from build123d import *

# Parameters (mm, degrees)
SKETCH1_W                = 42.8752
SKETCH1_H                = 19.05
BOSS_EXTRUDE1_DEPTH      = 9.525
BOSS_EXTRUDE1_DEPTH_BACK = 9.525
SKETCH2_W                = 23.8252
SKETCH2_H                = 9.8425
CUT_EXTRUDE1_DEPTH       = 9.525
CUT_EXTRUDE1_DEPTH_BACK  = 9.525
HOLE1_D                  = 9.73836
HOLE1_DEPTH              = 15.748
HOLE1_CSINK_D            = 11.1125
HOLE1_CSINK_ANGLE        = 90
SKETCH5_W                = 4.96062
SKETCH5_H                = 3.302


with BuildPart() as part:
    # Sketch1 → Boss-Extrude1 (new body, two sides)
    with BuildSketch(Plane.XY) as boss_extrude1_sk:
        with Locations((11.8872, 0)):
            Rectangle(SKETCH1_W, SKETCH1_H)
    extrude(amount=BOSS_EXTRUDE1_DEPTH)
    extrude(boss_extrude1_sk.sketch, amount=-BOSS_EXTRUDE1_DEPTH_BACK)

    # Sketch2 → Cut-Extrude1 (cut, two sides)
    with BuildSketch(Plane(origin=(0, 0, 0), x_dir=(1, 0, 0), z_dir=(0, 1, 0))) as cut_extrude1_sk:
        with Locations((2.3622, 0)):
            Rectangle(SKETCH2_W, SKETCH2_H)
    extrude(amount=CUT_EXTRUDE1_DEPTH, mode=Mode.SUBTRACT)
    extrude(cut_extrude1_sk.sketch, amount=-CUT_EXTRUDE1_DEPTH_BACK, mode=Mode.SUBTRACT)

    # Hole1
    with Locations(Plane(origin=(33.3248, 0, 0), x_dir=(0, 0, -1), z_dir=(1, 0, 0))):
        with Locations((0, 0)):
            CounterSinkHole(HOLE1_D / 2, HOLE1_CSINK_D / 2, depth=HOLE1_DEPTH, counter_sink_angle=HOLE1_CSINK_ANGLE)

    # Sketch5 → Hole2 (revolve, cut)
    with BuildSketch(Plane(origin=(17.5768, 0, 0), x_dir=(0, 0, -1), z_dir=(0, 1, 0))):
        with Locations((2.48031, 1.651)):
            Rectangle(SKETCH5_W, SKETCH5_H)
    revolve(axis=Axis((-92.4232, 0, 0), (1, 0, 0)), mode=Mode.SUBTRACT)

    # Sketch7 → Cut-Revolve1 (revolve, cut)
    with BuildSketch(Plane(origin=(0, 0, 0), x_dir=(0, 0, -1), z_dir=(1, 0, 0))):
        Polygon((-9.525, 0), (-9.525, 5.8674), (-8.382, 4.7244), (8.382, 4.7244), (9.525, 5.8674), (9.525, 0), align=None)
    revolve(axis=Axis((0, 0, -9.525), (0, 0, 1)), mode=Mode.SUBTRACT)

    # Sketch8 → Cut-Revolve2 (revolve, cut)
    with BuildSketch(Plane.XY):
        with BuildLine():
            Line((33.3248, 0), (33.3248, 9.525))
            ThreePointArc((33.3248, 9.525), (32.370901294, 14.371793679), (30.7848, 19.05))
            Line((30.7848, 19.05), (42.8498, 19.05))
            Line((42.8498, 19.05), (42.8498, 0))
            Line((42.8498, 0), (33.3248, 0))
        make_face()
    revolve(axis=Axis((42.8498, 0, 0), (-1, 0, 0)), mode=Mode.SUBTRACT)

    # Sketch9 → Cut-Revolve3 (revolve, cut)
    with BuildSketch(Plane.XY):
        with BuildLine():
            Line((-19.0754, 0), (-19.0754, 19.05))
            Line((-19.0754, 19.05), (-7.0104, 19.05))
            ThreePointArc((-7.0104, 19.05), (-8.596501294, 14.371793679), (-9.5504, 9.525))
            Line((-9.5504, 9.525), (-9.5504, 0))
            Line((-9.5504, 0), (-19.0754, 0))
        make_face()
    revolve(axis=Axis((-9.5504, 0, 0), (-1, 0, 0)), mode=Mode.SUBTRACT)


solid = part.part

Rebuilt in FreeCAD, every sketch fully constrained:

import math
import FreeCAD as App
import Part
import Sketcher
from FreeCAD import Vector
Q = App.Units.Quantity


def add_polygon(sketch, points):
    """Adds a closed chain of lines whose ends are joined by coincident constraints."""
    first, n = sketch.GeometryCount, len(points)
    for a, b in zip(points, points[1:] + points[:1]):
        sketch.addGeometry(Part.LineSegment(App.Vector(*a, 0), App.Vector(*b, 0)), False)
    for i in range(n):
        sketch.addConstraint(Sketcher.Constraint("Coincident", first + i, 2, first + (i + 1) % n, 1))

doc = App.newDocument("Part")
params = doc.addObject("Spreadsheet::Sheet", "Params")
for row, (alias, value) in enumerate([
    ("sketch1_height", "0.75 in"),
    ("sketch1_width", "1.688 in"),
    ("pad1_length", "0.375 in"),
    ("pad1_length2", "0.375 in"),
    ("sketch2_width", "0.938 in"),
    ("hole_diameter", "0.3834 in"),
    ("hole_depth", "0.62 in"),
    ("hole_csink_diameter", "0.4375 in"),
    ("sketch4_width", "0.13 in"),
    ("groove_angle", "360 deg"),
    ("sketch5_height", "0.75 in"),
    ("sketch5_height2", "0.66 in"),
    ("sketch5_width", "0.231 in"),
    ("groove2_angle", "360 deg"),
    ("sketch6_height", "0.75 in"),
    ("sketch6_width", "0.375 in"),
    ("groove3_angle", "360 deg"),
    ("sketch7_height", "0.75 in"),
    ("sketch7_width", "0.375 in"),
    ("groove4_angle", "360 deg"),
], start=1):
    params.set(f"A{row}", alias)
    params.set(f"B{row}", "=" + value)
    params.setAlias(f"B{row}", alias)

body = doc.addObject("PartDesign::Body", "Body")

# Sketch on XY plane
sketch1 = body.newObject("Sketcher::SketchObject", "Sketch")
sketch1.AttachmentSupport = (doc.getObject("XY_Plane"), [""])
sketch1.MapMode = "FlatFace"
add_polygon(sketch1, [(-9.5504, 9.525), (-9.5504, -9.525), (33.3248, -9.525), (33.3248, 9.525)])  # lines 0-3
sketch1.addConstraint([
    Sketcher.Constraint("Vertical", 0),
    Sketcher.Constraint("Horizontal", 1),
    Sketcher.Constraint("Vertical", 2),
    Sketcher.Constraint("Horizontal", 3),
    Sketcher.Constraint("DistanceY", 0, 2, 0, 1, Q("0.75 in")),
    Sketcher.Constraint("DistanceX", 1, 1, 1, 2, Q("1.688 in")),
    Sketcher.Constraint("DistanceX", 0, 2, -1, 1, Q("0.376 in")),
    Sketcher.Constraint("DistanceY", 0, 2, -1, 1, Q("0.375 in")),
])
sketch1.setExpression("Constraints[8]", "Params.sketch1_height")
sketch1.setExpression("Constraints[9]", "Params.sketch1_width")
pad1 = body.newObject("PartDesign::Pad", "Pad")
pad1.Profile = sketch1
pad1.Type = "TwoLengths"
pad1.setExpression("Length", "Params.pad1_length")
pad1.setExpression("Length2", "Params.pad1_length2")

# Sketch on XZ plane
sketch2 = body.newObject("Sketcher::SketchObject", "Sketch001")
sketch2.AttachmentSupport = (doc.getObject("XZ_Plane"), [""])
sketch2.MapMode = "FlatFace"
add_polygon(sketch2, [(-9.5504, -4.92125), (-9.5504, 4.92125), (14.2748, 4.92125), (14.2748, -4.92125)])  # lines 0-3
sketch2.addConstraint([
    Sketcher.Constraint("Vertical", 0),
    Sketcher.Constraint("Horizontal", 1),
    Sketcher.Constraint("Vertical", 2),
    Sketcher.Constraint("Horizontal", 3),
    Sketcher.Constraint("DistanceX", 1, 1, 1, 2, Q("0.938 in")),
    Sketcher.Constraint("DistanceY", 0, 1, 0, 2, Q("0.3875 in")),
    Sketcher.Constraint("DistanceX", 0, 2, -1, 1, Q("0.376 in")),
    Sketcher.Constraint("DistanceY", -1, 1, 0, 2, Q("4.92125 mm")),
])
sketch2.setExpression("Constraints[8]", "Params.sketch2_width")
pocket1 = body.newObject("PartDesign::Pocket", "Pocket")
pocket1.Profile = sketch2
pocket1.Type = "ThroughAll"
pocket1.Midplane = True

# Sketch on YZ plane
sketch3 = body.newObject("Sketcher::SketchObject", "Sketch002")
sketch3.AttachmentSupport = (doc.getObject("YZ_Plane"), [""])
sketch3.MapMode = "FlatFace"
sketch3.AttachmentOffset = App.Placement(Vector(0, 0, 1.312 * 25.4), App.Rotation())
sketch3.addGeometry(Part.Circle(Vector(0, 0, 0), Vector(0, 0, 1), 4.86918), False)
sketch3.addConstraint([
    Sketcher.Constraint("Coincident", 0, 3, -1, 1),
    Sketcher.Constraint("Diameter", 0, Q("0.3834 in")),
])
doc.recompute()
hole = body.newObject("PartDesign::Hole", "Hole")
hole.Profile = sketch3
hole.ThreadType = "None"
hole.setExpression("Diameter", "Params.hole_diameter")
hole.DepthType = "Dimension"
hole.setExpression("Depth", "Params.hole_depth")
hole.DrillPoint = "Flat"
hole.HoleCutType = "Countersink"
hole.setExpression("HoleCutDiameter", "Params.hole_csink_diameter")
hole.HoleCutCountersinkAngle = 90

# Sketch on XZ plane
sketch4 = body.newObject("Sketcher::SketchObject", "Sketch003")
sketch4.AttachmentSupport = (doc.getObject("XZ_Plane"), [""])
sketch4.MapMode = "FlatFace"
add_polygon(sketch4, [(14.2748, 0), (17.5768, 0), (17.5768, -4.96062), (14.2748, -4.96062)])  # lines 0-3
sketch4.addConstraint([
    Sketcher.Constraint("Horizontal", 0),
    Sketcher.Constraint("Vertical", 1),
    Sketcher.Constraint("Horizontal", 2),
    Sketcher.Constraint("Vertical", 3),
    Sketcher.Constraint("PointOnObject", 0, 2, -1),
    Sketcher.Constraint("DistanceX", 0, 1, 0, 2, Q("0.13 in")),
    Sketcher.Constraint("DistanceY", 1, 2, 1, 1, Q("0.1953 in")),
    Sketcher.Constraint("DistanceX", -1, 1, 0, 2, Q("0.692 in")),
])
sketch4.setExpression("Constraints[9]", "Params.sketch4_width")
groove = body.newObject("PartDesign::Groove", "Groove")
groove.Profile = sketch4
groove.ReferenceAxis = (sketch4, ["H_Axis"])
groove.setExpression("Angle", "Params.groove_angle")

# Sketch on YZ plane
sketch5 = body.newObject("Sketcher::SketchObject", "Sketch004")
sketch5.AttachmentSupport = (doc.getObject("YZ_Plane"), [""])
sketch5.MapMode = "FlatFace"
add_polygon(sketch5, [(5.8674, 9.525), (0, 9.525), (0, -9.525), (5.8674, -9.525), (4.7244, -8.382), (4.7244, 8.382)])  # lines 0-5
sketch5.addConstraint([
    Sketcher.Constraint("Horizontal", 0),
    Sketcher.Constraint("Vertical", 1),
    Sketcher.Constraint("Horizontal", 2),
    Sketcher.Constraint("Vertical", 4),
    Sketcher.Constraint("Symmetric", 0, 2, 1, 2, -1, 1),
    Sketcher.Constraint("Perpendicular", 3, 5),
    Sketcher.Constraint("Vertical", 2, 2, 5, 2),
    Sketcher.Constraint("Equal", 3, 5),
    Sketcher.Constraint("DistanceY", 1, 2, 1, 1, Q("0.75 in")),
    Sketcher.Constraint("DistanceY", 4, 1, 4, 2, Q("0.66 in")),
    Sketcher.Constraint("DistanceX", 0, 2, 0, 1, Q("0.231 in")),
])
sketch5.setExpression("Constraints[14]", "Params.sketch5_height")
sketch5.setExpression("Constraints[15]", "Params.sketch5_height2")
sketch5.setExpression("Constraints[16]", "Params.sketch5_width")
groove2 = body.newObject("PartDesign::Groove", "Groove001")
groove2.Profile = sketch5
groove2.ReferenceAxis = (sketch5, ["V_Axis"])
groove2.setExpression("Angle", "Params.groove2_angle")

# Sketch on XY plane
sketch6 = body.newObject("Sketcher::SketchObject", "Sketch005")
sketch6.AttachmentSupport = (doc.getObject("XY_Plane"), [""])
sketch6.MapMode = "FlatFace"
sketch6.addGeometry([
    Part.LineSegment(Vector(33.3248, 9.525, 0), Vector(33.3248, 0, 0)),  # 0
    Part.LineSegment(Vector(33.3248, 0, 0), Vector(42.8498, 0, 0)),  # 1
    Part.LineSegment(Vector(42.8498, 0, 0), Vector(42.8498, 19.05, 0)),  # 2
    Part.LineSegment(Vector(42.8498, 19.05, 0), Vector(30.7848, 19.05, 0)),  # 3
    Part.ArcOfCircle(Part.Circle(Vector(-3.66395, 4.7625, 0), Vector(0, 0, 1), 37.294088), math.radians(7.336774), math.radians(22.526061)),  # 4
], False)
sketch6.addConstraint([
    Sketcher.Constraint("Coincident", 0, 2, 1, 1),
    Sketcher.Constraint("Coincident", 1, 2, 2, 1),
    Sketcher.Constraint("Coincident", 2, 2, 3, 1),
    Sketcher.Constraint("Coincident", 3, 2, 4, 2),
    Sketcher.Constraint("Coincident", 4, 1, 0, 1),
    Sketcher.Constraint("Vertical", 0),
    Sketcher.Constraint("Horizontal", 1),
    Sketcher.Constraint("Vertical", 2),
    Sketcher.Constraint("Horizontal", 3),
    Sketcher.Constraint("PointOnObject", 0, 2, -1),
    Sketcher.Constraint("Equal", 1, 0),
    Sketcher.Constraint("DistanceY", 2, 1, 2, 2, Q("0.75 in")),
    Sketcher.Constraint("DistanceX", 3, 2, 0, 2, Q("0.1 in")),
    Sketcher.Constraint("DistanceX", 1, 1, 1, 2, Q("0.375 in")),
    Sketcher.Constraint("DistanceY", -1, 1, 4, 3, Q("0.1875 in")),
    Sketcher.Constraint("DistanceX", -1, 1, 0, 2, Q("1.312 in")),
])
sketch6.setExpression("Constraints[11]", "Params.sketch6_height")
sketch6.setExpression("Constraints[13]", "Params.sketch6_width")
groove3 = body.newObject("PartDesign::Groove", "Groove002")
groove3.Profile = sketch6
groove3.ReferenceAxis = (sketch6, ["H_Axis"])
groove3.setExpression("Angle", "Params.groove3_angle")

# Sketch on XY plane
sketch7 = body.newObject("Sketcher::SketchObject", "Sketch006")
sketch7.AttachmentSupport = (doc.getObject("XY_Plane"), [""])
sketch7.MapMode = "FlatFace"
sketch7.addGeometry([
    Part.LineSegment(Vector(-19.0754, 19.05, 0), Vector(-19.0754, 0, 0)),  # 0
    Part.LineSegment(Vector(-19.0754, 0, 0), Vector(-9.5504, 0, 0)),  # 1
    Part.LineSegment(Vector(-9.5504, 0, 0), Vector(-9.5504, 9.525, 0)),  # 2
    Part.ArcOfCircle(Part.Circle(Vector(27.43835, 4.7625, 0), Vector(0, 0, 1), 37.294088), math.radians(157.473939), math.radians(172.663226)),  # 3
    Part.LineSegment(Vector(-7.0104, 19.05, 0), Vector(-19.0754, 19.05, 0)),  # 4
], False)
sketch7.addConstraint([
    Sketcher.Constraint("Coincident", 0, 2, 1, 1),
    Sketcher.Constraint("Coincident", 1, 2, 2, 1),
    Sketcher.Constraint("Coincident", 2, 2, 3, 2),
    Sketcher.Constraint("Coincident", 3, 1, 4, 1),
    Sketcher.Constraint("Coincident", 4, 2, 0, 1),
    Sketcher.Constraint("Vertical", 0),
    Sketcher.Constraint("Horizontal", 1),
    Sketcher.Constraint("Vertical", 2),
    Sketcher.Constraint("Horizontal", 4),
    Sketcher.Constraint("PointOnObject", 0, 2, -1),
    Sketcher.Constraint("Equal", 1, 2),
    Sketcher.Constraint("DistanceY", 0, 2, 0, 1, Q("0.75 in")),
    Sketcher.Constraint("DistanceX", 2, 2, 3, 1, Q("0.1 in")),
    Sketcher.Constraint("DistanceX", 1, 1, 1, 2, Q("0.375 in")),
    Sketcher.Constraint("DistanceY", -1, 1, 3, 3, Q("0.1875 in")),
    Sketcher.Constraint("DistanceX", 0, 2, -1, 1, Q("0.751 in")),
])
sketch7.setExpression("Constraints[11]", "Params.sketch7_height")
sketch7.setExpression("Constraints[13]", "Params.sketch7_width")
groove4 = body.newObject("PartDesign::Groove", "Groove003")
groove4.Profile = sketch7
groove4.ReferenceAxis = (sketch7, ["H_Axis"])
groove4.setExpression("Angle", "Params.groove4_angle")

doc.recompute()
